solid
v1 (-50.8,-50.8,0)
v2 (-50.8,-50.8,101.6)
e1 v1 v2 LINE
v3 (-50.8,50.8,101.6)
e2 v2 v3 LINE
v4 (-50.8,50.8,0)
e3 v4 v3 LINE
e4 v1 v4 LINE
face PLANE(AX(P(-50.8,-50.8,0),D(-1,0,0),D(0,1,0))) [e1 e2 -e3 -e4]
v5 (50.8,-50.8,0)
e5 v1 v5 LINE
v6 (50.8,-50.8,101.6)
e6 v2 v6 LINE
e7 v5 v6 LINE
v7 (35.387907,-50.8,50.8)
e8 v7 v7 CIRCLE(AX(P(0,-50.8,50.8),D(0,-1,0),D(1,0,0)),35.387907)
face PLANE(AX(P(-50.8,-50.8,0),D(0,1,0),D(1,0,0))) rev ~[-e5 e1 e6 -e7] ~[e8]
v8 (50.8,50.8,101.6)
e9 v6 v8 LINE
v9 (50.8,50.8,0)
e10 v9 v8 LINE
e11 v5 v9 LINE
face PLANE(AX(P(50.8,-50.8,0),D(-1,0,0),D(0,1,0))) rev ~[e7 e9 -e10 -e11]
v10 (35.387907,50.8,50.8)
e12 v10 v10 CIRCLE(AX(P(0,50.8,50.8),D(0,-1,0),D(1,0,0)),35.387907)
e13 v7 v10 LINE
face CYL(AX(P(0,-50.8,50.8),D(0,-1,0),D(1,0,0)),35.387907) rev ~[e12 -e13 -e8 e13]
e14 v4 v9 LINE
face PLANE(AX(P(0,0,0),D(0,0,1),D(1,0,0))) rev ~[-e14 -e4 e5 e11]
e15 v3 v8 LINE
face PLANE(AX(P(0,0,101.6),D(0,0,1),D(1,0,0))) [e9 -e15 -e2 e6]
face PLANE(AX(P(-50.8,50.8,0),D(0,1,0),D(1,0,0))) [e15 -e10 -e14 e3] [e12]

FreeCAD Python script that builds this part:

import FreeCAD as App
import Part
import Sketcher
from FreeCAD import Vector
Q = App.Units.Quantity


def add_polygon(sketch, points):
    """Adds a closed chain of lines whose ends are joined by coincident constraints."""
    first, n = sketch.GeometryCount, len(points)
    for a, b in zip(points, points[1:] + points[:1]):
        sketch.addGeometry(Part.LineSegment(App.Vector(*a, 0), App.Vector(*b, 0)), False)
    for i in range(n):
        sketch.addConstraint(Sketcher.Constraint("Coincident", first + i, 2, first + (i + 1) % n, 1))

doc = App.newDocument("Part")
params = doc.addObject("Spreadsheet::Sheet", "Params")
for row, (alias, value) in enumerate([
    ("sketch1_width", "4 in"),
    ("pad1_length", "4 in"),
    ("pocket1_length", "5 in"),
], start=1):
    params.set(f"A{row}", alias)
    params.set(f"B{row}", "=" + value)
    params.setAlias(f"B{row}", alias)

body = doc.addObject("PartDesign::Body", "Body")

sketch1 = body.newObject("Sketcher::SketchObject", "Sketch")
sketch1.AttachmentSupport = (doc.getObject("XY_Plane"), [""])
sketch1.MapMode = "FlatFace"
add_polygon(sketch1, [(-51, 51), (-51, -51), (51, -51), (51, 51)])
sketch1.addConstraint([
    Sketcher.Constraint("Vertical", 0),
    Sketcher.Constraint("Horizontal", 1),
    Sketcher.Constraint("Vertical", 2),
    Sketcher.Constraint("Horizontal", 3),
    Sketcher.Constraint("Symmetric", 0, 2, 2, 2, -1, 1),
    Sketcher.Constraint("Equal", 3, 0),
    Sketcher.Constraint("DistanceX", 1, 1, 1, 2, Q("4 in")),
])
sketch1.setExpression("Constraints[10]", "Params.sketch1_width")
pad1 = body.newObject("PartDesign::Pad", "Pad")
pad1.Profile = sketch1
pad1.setExpression("Length", "Params.pad1_length")

sketch2 = body.newObject("Sketcher::SketchObject", "Sketch001")
sketch2.AttachmentSupport = (doc.getObject("XZ_Plane"), [""])
sketch2.MapMode = "FlatFace"
sketch2.AttachmentOffset = App.Placement(Vector(0, 0, 2 * 25.4), App.Rotation())
sketch2.addGeometry(Part.Circle(Vector(0, 51, 0), Vector(0, 0, 1), 35), False)
sketch2.addConstraint([
    Sketcher.Constraint("PointOnObject", 0, 3, -2),
    Sketcher.Constraint("DistanceY", -1, 1, 0, 3, Q("2 in")),
    Sketcher.Constraint("Diameter", 0, 70.775814),
])
pocket1 = body.newObject("PartDesign::Pocket", "Pocket")
pocket1.Profile = sketch2
pocket1.setExpression("Length", "Params.pocket1_length")

doc.recompute()
